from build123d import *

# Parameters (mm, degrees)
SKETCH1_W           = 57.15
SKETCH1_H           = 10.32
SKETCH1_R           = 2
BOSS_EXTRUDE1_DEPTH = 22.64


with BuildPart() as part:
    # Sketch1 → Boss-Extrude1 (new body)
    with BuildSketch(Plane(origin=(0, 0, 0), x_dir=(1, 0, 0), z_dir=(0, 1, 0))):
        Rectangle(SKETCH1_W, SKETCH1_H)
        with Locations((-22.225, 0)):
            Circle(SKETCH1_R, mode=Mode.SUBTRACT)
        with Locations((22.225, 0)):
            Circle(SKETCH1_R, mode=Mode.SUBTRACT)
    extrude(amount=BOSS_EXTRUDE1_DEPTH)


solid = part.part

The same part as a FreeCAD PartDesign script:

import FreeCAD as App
import Part
import Sketcher

doc = App.newDocument("Part")
params = doc.addObject("Spreadsheet::Sheet", "Params")
for row, (alias, value) in enumerate([
    ("sketch1_diameter", "4 mm"),
    ("sketch1_width", "57.15 mm"),
    ("sketch1_height", "10.32 mm"),
    ("pad1_length", "22.64 mm"),
], start=1):
    params.set(f"A{row}", alias)
    params.set(f"B{row}", "=" + value)
    params.setAlias(f"B{row}", alias)

body = doc.addObject("PartDesign::Body", "Body")

sketch1 = body.newObject("Sketcher::SketchObject", "Sketch")
sketch1.AttachmentSupport = (doc.getObject("XZ_Plane"), [""])
sketch1.MapMode = "FlatFace"
sketch1.addGeometry([
    Part.LineSegment(App.Vector(-28.575, -5.16, 0), App.Vector(-28.575, 5.16, 0)),
    Part.LineSegment(App.Vector(-28.575, 5.16, 0), App.Vector(28.575, 5.16, 0)),
    Part.LineSegment(App.Vector(28.575, 5.16, 0), App.Vector(28.575, -5.16, 0)),
    Part.LineSegment(App.Vector(28.575, -5.16, 0), App.Vector(-28.575, -5.16, 0)),
    Part.Circle(App.Vector(-22.225, 0, 0), App.Vector(0, 0, 1), 2),
    Part.Circle(App.Vector(22.225, 0, 0), App.Vector(0, 0, 1), 2),
], False)
sketch1.addConstraint([
    Sketcher.Constraint("Coincident", 0, 2, 1, 1),
    Sketcher.Constraint("Coincident", 1, 2, 2, 1),
    Sketcher.Constraint("Coincident", 2, 2, 3, 1),
    Sketcher.Constraint("Coincident", 3, 2, 0, 1),
    Sketcher.Constraint("Vertical", 0),
    Sketcher.Constraint("Horizontal", 1),
    Sketcher.Constraint("Vertical", 2),
    Sketcher.Constraint("Horizontal", 3),
    Sketcher.Constraint("Equal", 4, 5),
    Sketcher.Constraint("Symmetric", 4, 3, 5, 3, -1, 1),
    Sketcher.Constraint("Symmetric", 0, 2, 2, 2, -1, 1),
    Sketcher.Constraint("PointOnObject", 4, 3, -1),
    Sketcher.Constraint("Diameter", 4, 4.0),
    Sketcher.Constraint("DistanceX", 1, 1, 1, 2, 57.15),
    Sketcher.Constraint("DistanceY", 0, 1, 0, 2, 10.32),
    Sketcher.Constraint("DistanceX", 0, 2, 5, 3, 50.8),
])
sketch1.setExpression("Constraints[12]", "Params.sketch1_diameter")
sketch1.setExpression("Constraints[13]", "Params.sketch1_width")
sketch1.setExpression("Constraints[14]", "Params.sketch1_height")
pad1 = body.newObject("PartDesign::Pad", "Pad")
pad1.Profile = sketch1
pad1.setExpression("Length", "Params.pad1_length")
pad1.Reversed = True

doc.recompute()
